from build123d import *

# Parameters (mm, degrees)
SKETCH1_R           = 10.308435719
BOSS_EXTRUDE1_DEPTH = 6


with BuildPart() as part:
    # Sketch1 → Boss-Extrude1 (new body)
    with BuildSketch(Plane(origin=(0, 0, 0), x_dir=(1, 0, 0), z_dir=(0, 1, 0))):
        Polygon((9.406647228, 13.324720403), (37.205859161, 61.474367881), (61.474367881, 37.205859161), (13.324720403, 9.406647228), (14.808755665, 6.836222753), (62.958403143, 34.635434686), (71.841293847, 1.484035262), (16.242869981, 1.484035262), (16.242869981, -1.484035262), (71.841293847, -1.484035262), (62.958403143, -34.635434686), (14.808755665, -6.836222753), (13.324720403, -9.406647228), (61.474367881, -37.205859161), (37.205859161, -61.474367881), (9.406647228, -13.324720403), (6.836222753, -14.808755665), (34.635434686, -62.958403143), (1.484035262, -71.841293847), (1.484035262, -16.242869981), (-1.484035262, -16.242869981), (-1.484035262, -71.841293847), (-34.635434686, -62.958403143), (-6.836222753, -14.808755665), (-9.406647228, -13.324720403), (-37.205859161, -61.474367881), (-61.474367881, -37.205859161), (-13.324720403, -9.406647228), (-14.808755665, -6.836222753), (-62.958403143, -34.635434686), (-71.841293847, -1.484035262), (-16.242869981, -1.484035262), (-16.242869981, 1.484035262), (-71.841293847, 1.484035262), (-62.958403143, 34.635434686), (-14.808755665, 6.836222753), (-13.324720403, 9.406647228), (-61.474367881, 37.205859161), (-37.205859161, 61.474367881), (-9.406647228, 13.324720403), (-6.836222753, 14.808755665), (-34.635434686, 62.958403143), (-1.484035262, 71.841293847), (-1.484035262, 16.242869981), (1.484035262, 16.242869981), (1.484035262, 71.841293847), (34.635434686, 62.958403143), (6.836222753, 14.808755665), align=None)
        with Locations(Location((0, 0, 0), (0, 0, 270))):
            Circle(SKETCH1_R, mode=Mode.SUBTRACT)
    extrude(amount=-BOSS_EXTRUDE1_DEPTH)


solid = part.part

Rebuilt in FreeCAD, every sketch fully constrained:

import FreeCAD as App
import Part
import Sketcher
Q = App.Units.Quantity

doc = App.newDocument("Part")
params = doc.addObject("Spreadsheet::Sheet", "Params")
for row, (alias, value) in enumerate([
    ("pad1_length", "6 mm"),
], start=1):
    params.set(f"A{row}", alias)
    params.set(f"B{row}", "=" + value)
    params.setAlias(f"B{row}", alias)

body = doc.addObject("PartDesign::Body", "Body")

sketch1 = body.newObject("Sketcher::SketchObject", "Sketch")
sketch1.AttachmentSupport = (doc.getObject("XZ_Plane"), [""])
sketch1.MapMode = "FlatFace"
sketch1.addGeometry([
    Part.LineSegment(App.Vector(37.2, -61.5, 0), App.Vector(9.4, -13.3, 0)),
    Part.LineSegment(App.Vector(9.4, -13.3, 0), App.Vector(6.8, -14.8, 0)),
    Part.LineSegment(App.Vector(6.8, -14.8, 0), App.Vector(34.6, -63, 0)),
    Part.LineSegment(App.Vector(34.6, -63, 0), App.Vector(1.5, -71.8, 0)),
    Part.LineSegment(App.Vector(1.5, -71.8, 0), App.Vector(1.5, -16.2, 0)),
    Part.LineSegment(App.Vector(1.5, -16.2, 0), App.Vector(-1.5, -16.2, 0)),
    Part.LineSegment(App.Vector(-1.5, -16.2, 0), App.Vector(-1.5, -71.8, 0)),
    Part.LineSegment(App.Vector(-1.5, -71.8, 0), App.Vector(-34.6, -63, 0)),
    Part.LineSegment(App.Vector(-34.6, -63, 0), App.Vector(-6.8, -14.8, 0)),
    Part.LineSegment(App.Vector(-6.8, -14.8, 0), App.Vector(-9.4, -13.3, 0)),
    Part.LineSegment(App.Vector(-9.4, -13.3, 0), App.Vector(-37.2, -61.5, 0)),
    Part.LineSegment(App.Vector(-37.2, -61.5, 0), App.Vector(-61.5, -37.2, 0)),
    Part.LineSegment(App.Vector(-61.5, -37.2, 0), App.Vector(-13.3, -9.4, 0)),
    Part.LineSegment(App.Vector(-13.3, -9.4, 0), App.Vector(-14.8, -6.8, 0)),
    Part.LineSegment(App.Vector(-14.8, -6.8, 0), App.Vector(-63, -34.6, 0)),
    Part.LineSegment(App.Vector(-63, -34.6, 0), App.Vector(-71.8, -1.5, 0)),
    Part.LineSegment(App.Vector(-71.8, -1.5, 0), App.Vector(-16.2, -1.5, 0)),
    Part.LineSegment(App.Vector(-16.2, -1.5, 0), App.Vector(-16.2, 1.5, 0)),
    Part.LineSegment(App.Vector(-16.2, 1.5, 0), App.Vector(-71.8, 1.5, 0)),
    Part.LineSegment(App.Vector(-71.8, 1.5, 0), App.Vector(-63, 34.6, 0)),
    Part.LineSegment(App.Vector(-63, 34.6, 0), App.Vector(-14.8, 6.8, 0)),
    Part.LineSegment(App.Vector(-14.8, 6.8, 0), App.Vector(-13.3, 9.4, 0)),
    Part.LineSegment(App.Vector(-13.3, 9.4, 0), App.Vector(-61.5, 37.2, 0)),
    Part.LineSegment(App.Vector(-61.5, 37.2, 0), App.Vector(-37.2, 61.5, 0)),
    Part.LineSegment(App.Vector(-37.2, 61.5, 0), App.Vector(-9.4, 13.3, 0)),
    Part.LineSegment(App.Vector(-9.4, 13.3, 0), App.Vector(-6.8, 14.8, 0)),
    Part.LineSegment(App.Vector(-6.8, 14.8, 0), App.Vector(-34.6, 63, 0)),
    Part.LineSegment(App.Vector(-34.6, 63, 0), App.Vector(-1.5, 71.8, 0)),
    Part.LineSegment(App.Vector(-1.5, 71.8, 0), App.Vector(-1.5, 16.2, 0)),
    Part.LineSegment(App.Vector(-1.5, 16.2, 0), App.Vector(1.5, 16.2, 0)),
    Part.LineSegment(App.Vector(1.5, 16.2, 0), App.Vector(1.5, 71.8, 0)),
    Part.LineSegment(App.Vector(1.5, 71.8, 0), App.Vector(34.6, 63, 0)),
    Part.LineSegment(App.Vector(34.6, 63, 0), App.Vector(6.8, 14.8, 0)),
    Part.LineSegment(App.Vector(6.8, 14.8, 0), App.Vector(9.4, 13.3, 0)),
    Part.LineSegment(App.Vector(9.4, 13.3, 0), App.Vector(37.2, 61.5, 0)),
    Part.LineSegment(App.Vector(37.2, 61.5, 0), App.Vector(61.5, 37.2, 0)),
    Part.LineSegment(App.Vector(61.5, 37.2, 0), App.Vector(13.3, 9.4, 0)),
    Part.LineSegment(App.Vector(13.3, 9.4, 0), App.Vector(14.8, 6.8, 0)),
    Part.LineSegment(App.Vector(14.8, 6.8, 0), App.Vector(63, 34.6, 0)),
    Part.LineSegment(App.Vector(63, 34.6, 0), App.Vector(71.8, 1.5, 0)),
    Part.LineSegment(App.Vector(71.8, 1.5, 0), App.Vector(16.2, 1.5, 0)),
    Part.LineSegment(App.Vector(16.2, 1.5, 0), App.Vector(16.2, -1.5, 0)),
    Part.LineSegment(App.Vector(16.2, -1.5, 0), App.Vector(71.8, -1.5, 0)),
    Part.LineSegment(App.Vector(71.8, -1.5, 0), App.Vector(63, -34.6, 0)),
    Part.LineSegment(App.Vector(63, -34.6, 0), App.Vector(14.8, -6.8, 0)),
    Part.LineSegment(App.Vector(14.8, -6.8, 0), App.Vector(13.3, -9.4, 0)),
    Part.LineSegment(App.Vector(13.3, -9.4, 0), App.Vector(61.5, -37.2, 0)),
    Part.LineSegment(App.Vector(61.5, -37.2, 0), App.Vector(37.2, -61.5, 0)),
    Part.Circle(App.Vector(0, 0, 0), App.Vector(0, 0, 1), 10.3),
], False)
sketch1.addConstraint([
    Sketcher.Constraint("Coincident", 0, 2, 1, 1),
    Sketcher.Constraint("Coincident", 1, 2, 2, 1),
    Sketcher.Constraint("Coincident", 2, 2, 3, 1),
    Sketcher.Constraint("Coincident", 3, 2, 4, 1),
    Sketcher.Constraint("Coincident", 4, 2, 5, 1),
    Sketcher.Constraint("Coincident", 5, 2, 6, 1),
    Sketcher.Constraint("Coincident", 6, 2, 7, 1),
    Sketcher.Constraint("Coincident", 7, 2, 8, 1),
    Sketcher.Constraint("Coincident", 8, 2, 9, 1),
    Sketcher.Constraint("Coincident", 9, 2, 10, 1),
    Sketcher.Constraint("Coincident", 10, 2, 11, 1),
    Sketcher.Constraint("Coincident", 11, 2, 12, 1),
    Sketcher.Constraint("Coincident", 12, 2, 13, 1),
    Sketcher.Constraint("Coincident", 13, 2, 14, 1),
    Sketcher.Constraint("Coincident", 14, 2, 15, 1),
    Sketcher.Constraint("Coincident", 15, 2, 16, 1),
    Sketcher.Constraint("Coincident", 16, 2, 17, 1),
    Sketcher.Constraint("Coincident", 17, 2, 18, 1),
    Sketcher.Constraint("Coincident", 18, 2, 19, 1),
    Sketcher.Constraint("Coincident", 19, 2, 20, 1),
    Sketcher.Constraint("Coincident", 20, 2, 21, 1),
    Sketcher.Constraint("Coincident", 21, 2, 22, 1),
    Sketcher.Constraint("Coincident", 22, 2, 23, 1),
    Sketcher.Constraint("Coincident", 23, 2, 24, 1),
    Sketcher.Constraint("Coincident", 24, 2, 25, 1),
    Sketcher.Constraint("Coincident", 25, 2, 26, 1),
    Sketcher.Constraint("Coincident", 26, 2, 27, 1),
    Sketcher.Constraint("Coincident", 27, 2, 28, 1),
    Sketcher.Constraint("Coincident", 28, 2, 29, 1),
    Sketcher.Constraint("Coincident", 29, 2, 30, 1),
    Sketcher.Constraint("Coincident", 30, 2, 31, 1),
    Sketcher.Constraint("Coincident", 31, 2, 32, 1),
    Sketcher.Constraint("Coincident", 32, 2, 33, 1),
    Sketcher.Constraint("Coincident", 33, 2, 34, 1),
    Sketcher.Constraint("Coincident", 34, 2, 35, 1),
    Sketcher.Constraint("Coincident", 35, 2, 36, 1),
    Sketcher.Constraint("Coincident", 36, 2, 37, 1),
    Sketcher.Constraint("Coincident", 37, 2, 38, 1),
    Sketcher.Constraint("Coincident", 38, 2, 39, 1),
    Sketcher.Constraint("Coincident", 39, 2, 40, 1),
    Sketcher.Constraint("Coincident", 40, 2, 41, 1),
    Sketcher.Constraint("Coincident", 41, 2, 42, 1),
    Sketcher.Constraint("Coincident", 42, 2, 43, 1),
    Sketcher.Constraint("Coincident", 43, 2, 44, 1),
    Sketcher.Constraint("Coincident", 44, 2, 45, 1),
    Sketcher.Constraint("Coincident", 45, 2, 46, 1),
    Sketcher.Constraint("Coincident", 46, 2, 47, 1),
    Sketcher.Constraint("Coincident", 47, 2, 0, 1),
    Sketcher.Constraint("Vertical", 4),
    Sketcher.Constraint("Horizontal", 5),
    Sketcher.Constraint("Vertical", 6),
    Sketcher.Constraint("Horizontal", 16),
    Sketcher.Constraint("Vertical", 17),
    Sketcher.Constraint("Horizontal", 18),
    Sketcher.Constraint("Vertical", 28),
    Sketcher.Constraint("Horizontal", 29),
    Sketcher.Constraint("Vertical", 30),
    Sketcher.Constraint("Horizontal", 40),
    Sketcher.Constraint("Vertical", 41),
    Sketcher.Constraint("Horizontal", 42),
    Sketcher.Constraint("Coincident", 48, 3, -1, 1),
    Sketcher.Constraint("Symmetric", 0, 2, 24, 2, -1, 1),
    Sketcher.Constraint("Symmetric", 1, 2, 25, 2, -1, 1),
    Sketcher.Constraint("Symmetric", 2, 2, 26, 2, -1, 1),
    Sketcher.Constraint("Symmetric", 3, 2, 27, 2, -1, 1),
    Sketcher.Constraint("Symmetric", 5, 2, 29, 2, -1, 1),
    Sketcher.Constraint("Symmetric", 7, 2, 31, 2, -1, 1),
    Sketcher.Constraint("Symmetric", 8, 2, 32, 2, -1, 1),
    Sketcher.Constraint("Symmetric", 9, 2, 33, 2, -1, 1),
    Sketcher.Constraint("Symmetric", 10, 2, 34, 2, -1, 1),
    Sketcher.Constraint("Symmetric", 11, 2, 35, 2, -1, 1),
    Sketcher.Constraint("Symmetric", 12, 2, 36, 2, -1, 1),
    Sketcher.Constraint("Symmetric", 13, 2, 37, 2, -1, 1),
    Sketcher.Constraint("Symmetric", 14, 2, 38, 2, -1, 1),
    Sketcher.Constraint("Symmetric", 15, 2, 39, 2, -1, 1),
    Sketcher.Constraint("Symmetric", 17, 2, 41, 2, -1, 1),
    Sketcher.Constraint("Symmetric", 19, 2, 43, 2, -1, 1),
    Sketcher.Constraint("Symmetric", 20, 2, 44, 2, -1, 1),
    Sketcher.Constraint("Symmetric", 21, 2, 45, 2, -1, 1),
    Sketcher.Constraint("Symmetric", 22, 2, 46, 2, -1, 1),
    Sketcher.Constraint("Symmetric", 23, 2, 47, 2, -1, 1),
    Sketcher.Constraint("Symmetric", 3, 2, 6, 2, -2),
    Sketcher.Constraint("Symmetric", 2, 2, 7, 2, -2),
    Sketcher.Constraint("Symmetric", 1, 2, 8, 2, -2),
    Sketcher.Constraint("Symmetric", 0, 2, 9, 2, -2),
    Sketcher.Constraint("Symmetric", 23, 2, 34, 2, -2),
    Sketcher.Constraint("Symmetric", 22, 2, 35, 2, -2),
    Sketcher.Constraint("Symmetric", 21, 2, 36, 2, -2),
    Sketcher.Constraint("Symmetric", 20, 2, 37, 2, -2),
    Sketcher.Constraint("Symmetric", 19, 2, 38, 2, -2),
    Sketcher.Constraint("Symmetric", 18, 2, 39, 2, -2),
    Sketcher.Constraint("Perpendicular", 0, 1),
    Sketcher.Constraint("Perpendicular", 1, 2),
    Sketcher.Constraint("Perpendicular", 2, 12),
    Sketcher.Constraint("Perpendicular", 12, 13),
    Sketcher.Constraint("Perpendicular", 13, 14),
    Sketcher.Constraint("Perpendicular", 3, 15),
    Sketcher.Constraint("Perpendicular", 11, 23),
    Sketcher.Constraint("Perpendicular", 19, 31),
    Sketcher.Constraint("Perpendicular", 31, 43),
    Sketcher.Constraint("Equal", 42, 4),
    Sketcher.Constraint("Equal", 29, 17),
    Sketcher.Constraint("Equal", 0, 2),
    Sketcher.Constraint("Equal", 7, 11),
    Sketcher.Constraint("Equal", 10, 12),
    Sketcher.Constraint("Equal", 9, 13),
    Sketcher.Constraint("Equal", 12, 14),
    Sketcher.Constraint("Equal", 11, 15),
    Sketcher.Constraint("Angle", 0, Q("120 deg")),
    Sketcher.Constraint("Angle", 3, Q("-165 deg")),
    Sketcher.Constraint("Diameter", 48, 20.616871),
    Sketcher.Constraint("DistanceX", 5, 2, 5, 1, 2.968071),
    Sketcher.Constraint("DistanceX", 3, 2, 2, 2, 33.151399),
    Sketcher.Constraint("Distance", 1, 2.968071),
    Sketcher.Constraint("DistanceX", 16, 1, 16, 2, 55.598424),
    Sketcher.Constraint("DistanceY", 0, 2, -1, 1, 13.32472),
])
pad1 = body.newObject("PartDesign::Pad", "Pad")
pad1.Profile = sketch1
pad1.setExpression("Length", "Params.pad1_length")

doc.recompute()
